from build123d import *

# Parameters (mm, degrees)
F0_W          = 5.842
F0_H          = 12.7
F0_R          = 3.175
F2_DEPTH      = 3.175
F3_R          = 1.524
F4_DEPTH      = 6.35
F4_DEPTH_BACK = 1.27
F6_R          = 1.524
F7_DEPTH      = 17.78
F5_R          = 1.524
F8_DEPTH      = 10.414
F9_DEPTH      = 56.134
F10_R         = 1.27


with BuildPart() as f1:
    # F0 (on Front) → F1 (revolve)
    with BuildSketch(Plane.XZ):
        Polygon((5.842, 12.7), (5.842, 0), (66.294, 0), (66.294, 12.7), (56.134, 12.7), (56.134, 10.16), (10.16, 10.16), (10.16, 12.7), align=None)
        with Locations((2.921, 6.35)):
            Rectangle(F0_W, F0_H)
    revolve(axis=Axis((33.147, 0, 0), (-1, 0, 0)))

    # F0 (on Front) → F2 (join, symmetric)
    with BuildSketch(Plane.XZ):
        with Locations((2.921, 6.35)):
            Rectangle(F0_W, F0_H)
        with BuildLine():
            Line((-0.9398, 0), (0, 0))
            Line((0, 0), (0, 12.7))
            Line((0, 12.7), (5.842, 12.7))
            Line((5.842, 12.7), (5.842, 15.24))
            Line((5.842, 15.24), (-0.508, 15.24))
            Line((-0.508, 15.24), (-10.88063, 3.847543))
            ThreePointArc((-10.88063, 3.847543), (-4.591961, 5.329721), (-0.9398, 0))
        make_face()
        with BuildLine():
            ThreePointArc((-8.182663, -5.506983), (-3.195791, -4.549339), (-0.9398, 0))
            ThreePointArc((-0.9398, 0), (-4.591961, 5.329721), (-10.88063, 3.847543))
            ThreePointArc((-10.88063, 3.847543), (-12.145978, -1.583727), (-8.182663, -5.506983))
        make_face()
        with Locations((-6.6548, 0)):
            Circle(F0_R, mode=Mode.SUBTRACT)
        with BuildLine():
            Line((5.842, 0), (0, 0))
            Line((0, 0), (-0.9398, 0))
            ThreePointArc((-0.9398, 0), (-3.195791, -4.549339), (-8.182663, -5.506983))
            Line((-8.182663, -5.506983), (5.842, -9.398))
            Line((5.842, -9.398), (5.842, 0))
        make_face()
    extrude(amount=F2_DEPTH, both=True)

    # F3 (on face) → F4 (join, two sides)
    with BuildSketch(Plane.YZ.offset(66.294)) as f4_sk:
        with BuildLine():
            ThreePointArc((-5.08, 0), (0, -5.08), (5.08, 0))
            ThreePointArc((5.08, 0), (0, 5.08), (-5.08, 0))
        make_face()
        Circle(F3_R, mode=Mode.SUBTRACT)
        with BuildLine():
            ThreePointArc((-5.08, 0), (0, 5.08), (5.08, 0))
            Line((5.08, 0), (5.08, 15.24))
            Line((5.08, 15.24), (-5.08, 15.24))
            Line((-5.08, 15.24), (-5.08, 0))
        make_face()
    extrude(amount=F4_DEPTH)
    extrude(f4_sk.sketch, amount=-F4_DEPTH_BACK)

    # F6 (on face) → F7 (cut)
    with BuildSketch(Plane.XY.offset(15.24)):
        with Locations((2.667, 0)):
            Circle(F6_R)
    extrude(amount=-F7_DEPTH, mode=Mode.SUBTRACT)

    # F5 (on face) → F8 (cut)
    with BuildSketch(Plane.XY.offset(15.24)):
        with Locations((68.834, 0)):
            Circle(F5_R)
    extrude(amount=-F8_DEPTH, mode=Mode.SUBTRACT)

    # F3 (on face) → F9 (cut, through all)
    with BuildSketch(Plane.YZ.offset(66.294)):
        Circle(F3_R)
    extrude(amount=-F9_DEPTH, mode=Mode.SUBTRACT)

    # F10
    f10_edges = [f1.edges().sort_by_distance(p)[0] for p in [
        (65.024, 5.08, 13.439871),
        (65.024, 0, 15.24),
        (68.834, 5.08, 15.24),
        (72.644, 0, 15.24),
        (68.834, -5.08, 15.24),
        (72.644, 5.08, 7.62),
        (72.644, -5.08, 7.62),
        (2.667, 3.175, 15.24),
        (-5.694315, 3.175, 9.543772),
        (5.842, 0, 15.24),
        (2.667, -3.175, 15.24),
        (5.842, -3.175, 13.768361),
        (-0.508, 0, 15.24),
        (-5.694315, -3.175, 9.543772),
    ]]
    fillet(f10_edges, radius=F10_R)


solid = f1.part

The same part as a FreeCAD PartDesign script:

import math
import FreeCAD as App
import Part
import Sketcher
from FreeCAD import Vector
Q = App.Units.Quantity


def edges_at(feature, points):
    """Names of the edges that pass closest to the given points."""
    edges = feature.Shape.Edges
    near = lambda p: min(range(len(edges)), key=lambda i: edges[i].distToShape(Part.Vertex(*p))[0])
    return sorted({f"Edge{near(p) + 1}" for p in points})

doc = App.newDocument("Part")
params = doc.addObject("Spreadsheet::Sheet", "Params")
for row, (alias, value) in enumerate([
    ("sketch1_width", "0.4 in"),
    ("sketch1_height", "0.5 in"),
    ("sketch1_height2", "0.1 in"),
    ("sketch1_width2", "1.81 in"),
    ("revolution_angle", "360 deg"),
    ("sketch2_diameter", "0.25 in"),
    ("sketch2_radius", "0.225 in"),
    ("sketch2_width", "0.25 in"),
    ("sketch2_height", "0.97 in"),
    ("pad1_length", "0.25 in"),
    ("sketch3_radius", "0.2 in"),
    ("sketch3_diameter", "0.12 in"),
    ("sketch3_height", "0.6 in"),
    ("pad2_length", "0.25 in"),
    ("pad2_length2", "0.05 in"),
    ("sketch4_diameter", "0.12 in"),
    ("pocket1_length", "0.7 in"),
    ("sketch5_diameter", "0.12 in"),
    ("pocket2_length", "0.41 in"),
    ("sketch6_diameter", "0.12 in"),
    ("pocket3_length", "2.21 in"),
    ("fillet_radius", "0.05 in"),
], start=1):
    params.set(f"A{row}", alias)
    params.set(f"B{row}", "=" + value)
    params.setAlias(f"B{row}", alias)

body = doc.addObject("PartDesign::Body", "Body")

sketch1 = doc.addObject("Sketcher::SketchObject", "Sketch")
body.addObject(sketch1)
sketch1.AttachmentSupport = (doc.XZ_Plane, [""])
sketch1.MapMode = "FlatFace"
sketch1.addGeometry(Part.LineSegment(Vector(66.3, 0, 0), Vector(66.3, 12.7, 0)), False)
sketch1.addGeometry(Part.LineSegment(Vector(66.3, 12.7, 0), Vector(56.1, 12.7, 0)), False)
sketch1.addGeometry(Part.LineSegment(Vector(56.1, 12.7, 0), Vector(56.1, 10.2, 0)), False)
sketch1.addGeometry(Part.LineSegment(Vector(56.1, 10.2, 0), Vector(10.2, 10.2, 0)), False)
sketch1.addGeometry(Part.LineSegment(Vector(10.2, 10.2, 0), Vector(10.2, 12.7, 0)), False)
sketch1.addGeometry(Part.LineSegment(Vector(10.2, 12.7, 0), Vector(0, 12.7, 0)), False)
sketch1.addGeometry(Part.LineSegment(Vector(0, 12.7, 0), Vector(0, 0, 0)), False)
sketch1.addGeometry(Part.LineSegment(Vector(0, 0, 0), Vector(66.3, 0, 0)), False)
sketch1.addConstraint(Sketcher.Constraint("Coincident", 0, 2, 1, 1))
sketch1.addConstraint(Sketcher.Constraint("Coincident", 1, 2, 2, 1))
sketch1.addConstraint(Sketcher.Constraint("Coincident", 2, 2, 3, 1))
sketch1.addConstraint(Sketcher.Constraint("Coincident", 3, 2, 4, 1))
sketch1.addConstraint(Sketcher.Constraint("Coincident", 4, 2, 5, 1))
sketch1.addConstraint(Sketcher.Constraint("Coincident", 5, 2, 6, 1))
sketch1.addConstraint(Sketcher.Constraint("Coincident", 6, 2, 7, 1))
sketch1.addConstraint(Sketcher.Constraint("Coincident", 7, 2, 0, 1))
sketch1.addConstraint(Sketcher.Constraint("Vertical", 0))
sketch1.addConstraint(Sketcher.Constraint("Horizontal", 1))
sketch1.addConstraint(Sketcher.Constraint("Vertical", 2))
sketch1.addConstraint(Sketcher.Constraint("Horizontal", 3))
sketch1.addConstraint(Sketcher.Constraint("Vertical", 4))
sketch1.addConstraint(Sketcher.Constraint("Horizontal", 5))
sketch1.addConstraint(Sketcher.Constraint("Vertical", 6))
sketch1.addConstraint(Sketcher.Constraint("Horizontal", 7))
sketch1.addConstraint(Sketcher.Constraint("Coincident", 6, 2, -1, 1))
sketch1.addConstraint(Sketcher.Constraint("Horizontal", 1, 2, 4, 2))
sketch1.addConstraint(Sketcher.Constraint("Equal", 1, 5))
sketch1.addConstraint(Sketcher.Constraint("DistanceX", 1, 2, 1, 1, Q("0.4 in")))
sketch1.addConstraint(Sketcher.Constraint("DistanceY", 0, 1, 0, 2, Q("0.5 in")))
sketch1.addConstraint(Sketcher.Constraint("DistanceY", 2, 2, 2, 1, Q("0.1 in")))
sketch1.addConstraint(Sketcher.Constraint("DistanceX", 3, 2, 3, 1, Q("1.81 in")))
sketch1.setExpression("Constraints[19]", "Params.sketch1_width")
sketch1.setExpression("Constraints[20]", "Params.sketch1_height")
sketch1.setExpression("Constraints[21]", "Params.sketch1_height2")
sketch1.setExpression("Constraints[22]", "Params.sketch1_width2")
revolution = doc.addObject("PartDesign::Revolution", "Revolution")
body.addObject(revolution)
revolution.Profile = sketch1
revolution.ReferenceAxis = (sketch1, ["H_Axis"])
revolution.setExpression("Angle", "Params.revolution_angle")

sketch2 = doc.addObject("Sketcher::SketchObject", "Sketch001")
body.addObject(sketch2)
sketch2.AttachmentSupport = (doc.XZ_Plane, [""])
sketch2.MapMode = "FlatFace"
sketch2.addGeometry(Part.LineSegment(Vector(5.8, 15.2, 0), Vector(-0.5, 15.2, 0)), False)
sketch2.addGeometry(Part.LineSegment(Vector(-0.5, 15.2, 0), Vector(-10.9, 3.8, 0)), False)
sketch2.addGeometry(Part.ArcOfCircle(Part.Circle(Vector(-6.7, 0, 0), Vector(0, 0, 1), 5.7), math.radians(138), math.radians(254)), False)
sketch2.addGeometry(Part.LineSegment(Vector(-8.2, -5.5, 0), Vector(5.8, -9.4, 0)), False)
sketch2.addGeometry(Part.LineSegment(Vector(5.8, -9.4, 0), Vector(5.8, 15.2, 0)), False)
sketch2.addGeometry(Part.Circle(Vector(-6.7, 0, 0), Vector(0, 0, 1), 3.2), False)
sketch2.addConstraint(Sketcher.Constraint("Coincident", 0, 2, 1, 1))
sketch2.addConstraint(Sketcher.Constraint("Tangent", 1, 2, 2, 1))
sketch2.addConstraint(Sketcher.Constraint("Tangent", 2, 2, 3, 1))
sketch2.addConstraint(Sketcher.Constraint("Coincident", 3, 2, 4, 1))
sketch2.addConstraint(Sketcher.Constraint("Coincident", 4, 2, 0, 1))
sketch2.addConstraint(Sketcher.Constraint("Horizontal", 0))
sketch2.addConstraint(Sketcher.Constraint("Vertical", 4))
sketch2.addConstraint(Sketcher.Constraint("Coincident", 5, 3, 2, 3))
sketch2.addConstraint(Sketcher.Constraint("PointOnObject", 2, 3, -1))
sketch2.addConstraint(Sketcher.Constraint("Diameter", 5, Q("0.25 in")))
sketch2.addConstraint(Sketcher.Constraint("Radius", 2, Q("0.225 in")))
sketch2.addConstraint(Sketcher.Constraint("DistanceX", 0, 2, 0, 1, Q("0.25 in")))
sketch2.addConstraint(Sketcher.Constraint("DistanceY", 4, 1, 4, 2, Q("0.97 in")))
sketch2.addConstraint(Sketcher.Constraint("DistanceY", -1, 1, 0, 2, Q("0.6 in")))
sketch2.addConstraint(Sketcher.Constraint("DistanceX", 0, 2, -1, 1, Q("0.02 in")))
sketch2.addConstraint(Sketcher.Constraint("DistanceX", 2, 3, -1, 1, Q("0.262 in")))
sketch2.setExpression("Constraints[9]", "Params.sketch2_diameter")
sketch2.setExpression("Constraints[10]", "Params.sketch2_radius")
sketch2.setExpression("Constraints[11]", "Params.sketch2_width")
sketch2.setExpression("Constraints[12]", "Params.sketch2_height")
pad1 = doc.addObject("PartDesign::Pad", "Pad")
body.addObject(pad1)
pad1.Profile = sketch2
pad1.setExpression("Length", "Params.pad1_length")
pad1.Midplane = True

sketch3 = doc.addObject("Sketcher::SketchObject", "Sketch002")
body.addObject(sketch3)
sketch3.AttachmentSupport = (doc.YZ_Plane, [""])
sketch3.MapMode = "FlatFace"
sketch3.AttachmentOffset = App.Placement(Vector(0, 0, 2.61 * 25.4), App.Rotation())
sketch3.addGeometry(Part.ArcOfCircle(Part.Circle(Vector(0, 0, 0), Vector(0, 0, 1), 5.1), math.radians(180), math.radians(360)), False)
sketch3.addGeometry(Part.LineSegment(Vector(5.1, 0, 0), Vector(5.1, 15.2, 0)), False)
sketch3.addGeometry(Part.LineSegment(Vector(5.1, 15.2, 0), Vector(-5.1, 15.2, 0)), False)
sketch3.addGeometry(Part.LineSegment(Vector(-5.1, 15.2, 0), Vector(-5.1, 0, 0)), False)
sketch3.addGeometry(Part.Circle(Vector(0, 0, 0), Vector(0, 0, 1), 1.5), False)
sketch3.addConstraint(Sketcher.Constraint("Tangent", 0, 2, 1, 1))
sketch3.addConstraint(Sketcher.Constraint("Coincident", 1, 2, 2, 1))
sketch3.addConstraint(Sketcher.Constraint("Coincident", 2, 2, 3, 1))
sketch3.addConstraint(Sketcher.Constraint("Tangent", 3, 2, 0, 1))
sketch3.addConstraint(Sketcher.Constraint("Vertical", 1))
sketch3.addConstraint(Sketcher.Constraint("Horizontal", 2))
sketch3.addConstraint(Sketcher.Constraint("Vertical", 3))
sketch3.addConstraint(Sketcher.Constraint("Coincident", 0, 3, -1, 1))
sketch3.addConstraint(Sketcher.Constraint("Coincident", 4, 3, -1, 1))
sketch3.addConstraint(Sketcher.Constraint("Radius", 0, Q("0.2 in")))
sketch3.addConstraint(Sketcher.Constraint("Diameter", 4, Q("0.12 in")))
sketch3.addConstraint(Sketcher.Constraint("DistanceY", 1, 1, 1, 2, Q("0.6 in")))
sketch3.setExpression("Constraints[9]", "Params.sketch3_radius")
sketch3.setExpression("Constraints[10]", "Params.sketch3_diameter")
sketch3.setExpression("Constraints[11]", "Params.sketch3_height")
pad2 = doc.addObject("PartDesign::Pad", "Pad001")
body.addObject(pad2)
pad2.Profile = sketch3
pad2.Type = "TwoLengths"
pad2.setExpression("Length", "Params.pad2_length")
pad2.setExpression("Length2", "Params.pad2_length2")

sketch4 = doc.addObject("Sketcher::SketchObject", "Sketch003")
body.addObject(sketch4)
sketch4.AttachmentSupport = (doc.XY_Plane, [""])
sketch4.MapMode = "FlatFace"
sketch4.AttachmentOffset = App.Placement(Vector(0, 0, 0.6 * 25.4), App.Rotation())
sketch4.addGeometry(Part.Circle(Vector(2.7, 0, 0), Vector(0, 0, 1), 1.5), False)
sketch4.addConstraint(Sketcher.Constraint("PointOnObject", 0, 3, -1))
sketch4.addConstraint(Sketcher.Constraint("Diameter", 0, Q("0.12 in")))
sketch4.addConstraint(Sketcher.Constraint("DistanceX", -1, 1, 0, 3, Q("0.105 in")))
sketch4.setExpression("Constraints[1]", "Params.sketch4_diameter")
pocket1 = doc.addObject("PartDesign::Pocket", "Pocket")
body.addObject(pocket1)
pocket1.Profile = sketch4
pocket1.setExpression("Length", "Params.pocket1_length")

sketch5 = doc.addObject("Sketcher::SketchObject", "Sketch004")
body.addObject(sketch5)
sketch5.AttachmentSupport = (doc.XY_Plane, [""])
sketch5.MapMode = "FlatFace"
sketch5.AttachmentOffset = App.Placement(Vector(0, 0, 0.6 * 25.4), App.Rotation())
sketch5.addGeometry(Part.Circle(Vector(68.8, 0, 0), Vector(0, 0, 1), 1.5), False)
sketch5.addConstraint(Sketcher.Constraint("PointOnObject", 0, 3, -1))
sketch5.addConstraint(Sketcher.Constraint("Diameter", 0, Q("0.12 in")))
sketch5.addConstraint(Sketcher.Constraint("DistanceX", -1, 1, 0, 3, Q("2.71 in")))
sketch5.setExpression("Constraints[1]", "Params.sketch5_diameter")
pocket2 = doc.addObject("PartDesign::Pocket", "Pocket001")
body.addObject(pocket2)
pocket2.Profile = sketch5
pocket2.setExpression("Length", "Params.pocket2_length")

sketch6 = doc.addObject("Sketcher::SketchObject", "Sketch005")
body.addObject(sketch6)
sketch6.AttachmentSupport = (doc.YZ_Plane, [""])
sketch6.MapMode = "FlatFace"
sketch6.AttachmentOffset = App.Placement(Vector(0, 0, 2.61 * 25.4), App.Rotation())
sketch6.addGeometry(Part.Circle(Vector(0, 0, 0), Vector(0, 0, 1), 1.5), False)
sketch6.addConstraint(Sketcher.Constraint("Coincident", 0, 3, -1, 1))
sketch6.addConstraint(Sketcher.Constraint("Diameter", 0, Q("0.12 in")))
sketch6.setExpression("Constraints[1]", "Params.sketch6_diameter")
pocket3 = doc.addObject("PartDesign::Pocket", "Pocket002")
body.addObject(pocket3)
pocket3.Profile = sketch6
pocket3.setExpression("Length", "Params.pocket3_length")
doc.recompute()

fillet = doc.addObject("PartDesign::Fillet", "Fillet")
body.addObject(fillet)
fillet.Base = (pocket3, edges_at(pocket3, [
    (65.024, 5.08, 13.44),
    (65.024, 0, 15.24),
    (68.834, 5.08, 15.24),
    (72.644, 0, 15.24),
    (68.834, -5.08, 15.24),
    (72.644, 5.08, 7.62),
    (72.644, -5.08, 7.62),
    (2.667, 3.175, 15.24),
    (-5.694, 3.175, 9.544),
    (5.842, 0, 15.24),
    (2.667, -3.175, 15.24),
    (5.842, -3.175, 13.768),
    (-0.508, 0, 15.24),
    (-5.694, -3.175, 9.544),
]))
fillet.setExpression("Radius", "Params.fillet_radius")

doc.recompute()
